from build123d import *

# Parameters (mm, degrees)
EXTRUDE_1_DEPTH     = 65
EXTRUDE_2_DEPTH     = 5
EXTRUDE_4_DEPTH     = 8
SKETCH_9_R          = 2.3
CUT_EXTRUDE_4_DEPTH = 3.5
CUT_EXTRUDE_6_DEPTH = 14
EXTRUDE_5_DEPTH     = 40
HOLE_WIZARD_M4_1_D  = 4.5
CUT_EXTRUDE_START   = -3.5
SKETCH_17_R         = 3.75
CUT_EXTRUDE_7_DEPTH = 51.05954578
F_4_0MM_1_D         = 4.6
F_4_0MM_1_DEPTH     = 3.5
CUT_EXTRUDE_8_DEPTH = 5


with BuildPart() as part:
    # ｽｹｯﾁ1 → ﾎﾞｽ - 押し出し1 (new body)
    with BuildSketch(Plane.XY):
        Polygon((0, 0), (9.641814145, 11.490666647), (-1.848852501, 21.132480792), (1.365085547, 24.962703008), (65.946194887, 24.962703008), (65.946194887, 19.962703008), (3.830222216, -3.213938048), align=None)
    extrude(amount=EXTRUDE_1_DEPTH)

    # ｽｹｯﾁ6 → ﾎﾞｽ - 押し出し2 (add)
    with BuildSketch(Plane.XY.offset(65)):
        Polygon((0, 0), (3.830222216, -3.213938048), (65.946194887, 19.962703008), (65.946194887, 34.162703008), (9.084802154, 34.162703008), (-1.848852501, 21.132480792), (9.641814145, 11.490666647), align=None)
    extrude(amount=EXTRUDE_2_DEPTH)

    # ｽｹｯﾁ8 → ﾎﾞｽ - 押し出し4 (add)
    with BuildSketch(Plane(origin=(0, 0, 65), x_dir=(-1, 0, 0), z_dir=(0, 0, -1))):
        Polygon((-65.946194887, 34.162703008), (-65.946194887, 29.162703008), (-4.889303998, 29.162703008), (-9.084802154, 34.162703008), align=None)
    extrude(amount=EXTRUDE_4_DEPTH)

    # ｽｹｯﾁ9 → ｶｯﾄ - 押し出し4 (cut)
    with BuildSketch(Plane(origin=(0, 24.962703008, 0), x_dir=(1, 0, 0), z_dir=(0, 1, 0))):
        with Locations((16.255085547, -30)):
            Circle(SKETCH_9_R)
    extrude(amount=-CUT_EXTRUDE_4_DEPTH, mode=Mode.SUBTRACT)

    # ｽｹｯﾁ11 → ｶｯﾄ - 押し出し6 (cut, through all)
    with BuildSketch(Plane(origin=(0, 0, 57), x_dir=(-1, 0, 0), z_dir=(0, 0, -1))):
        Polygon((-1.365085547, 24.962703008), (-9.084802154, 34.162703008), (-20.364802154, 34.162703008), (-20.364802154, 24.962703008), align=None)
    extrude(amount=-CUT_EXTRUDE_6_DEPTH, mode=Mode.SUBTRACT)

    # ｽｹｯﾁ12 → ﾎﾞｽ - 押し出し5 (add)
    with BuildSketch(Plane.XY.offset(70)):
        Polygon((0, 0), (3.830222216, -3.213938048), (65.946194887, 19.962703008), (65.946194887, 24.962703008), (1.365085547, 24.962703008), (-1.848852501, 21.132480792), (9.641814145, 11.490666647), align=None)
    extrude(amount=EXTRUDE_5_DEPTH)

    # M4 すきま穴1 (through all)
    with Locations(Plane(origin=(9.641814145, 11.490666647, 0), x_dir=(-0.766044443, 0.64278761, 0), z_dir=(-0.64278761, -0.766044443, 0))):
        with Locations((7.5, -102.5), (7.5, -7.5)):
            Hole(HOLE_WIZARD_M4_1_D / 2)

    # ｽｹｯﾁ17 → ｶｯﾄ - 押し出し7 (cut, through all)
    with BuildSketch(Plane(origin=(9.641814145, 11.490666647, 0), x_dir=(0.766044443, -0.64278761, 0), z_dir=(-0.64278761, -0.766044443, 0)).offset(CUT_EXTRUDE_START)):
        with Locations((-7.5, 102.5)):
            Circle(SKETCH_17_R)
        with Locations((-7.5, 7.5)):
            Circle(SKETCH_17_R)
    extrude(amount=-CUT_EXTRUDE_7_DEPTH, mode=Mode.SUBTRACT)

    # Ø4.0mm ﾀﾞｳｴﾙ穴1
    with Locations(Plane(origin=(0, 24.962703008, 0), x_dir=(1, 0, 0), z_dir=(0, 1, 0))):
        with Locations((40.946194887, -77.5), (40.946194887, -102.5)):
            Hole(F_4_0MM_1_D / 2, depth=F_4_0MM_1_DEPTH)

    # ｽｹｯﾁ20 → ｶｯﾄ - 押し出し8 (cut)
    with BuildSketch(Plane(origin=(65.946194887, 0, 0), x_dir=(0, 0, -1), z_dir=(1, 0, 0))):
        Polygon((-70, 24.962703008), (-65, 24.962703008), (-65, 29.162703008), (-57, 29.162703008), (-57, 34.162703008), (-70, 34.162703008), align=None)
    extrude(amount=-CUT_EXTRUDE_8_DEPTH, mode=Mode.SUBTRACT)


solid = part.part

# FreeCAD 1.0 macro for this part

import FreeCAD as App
import Part
import Sketcher
from FreeCAD import Vector
Q = App.Units.Quantity

doc = App.newDocument("Part")
body = doc.addObject("PartDesign::Body", "Body")

# Sketch on XY plane
sketch1 = body.newObject("Sketcher::SketchObject", "Sketch")
sketch1.AttachmentSupport = (doc.getObject("XY_Plane"), [""])
sketch1.MapMode = "FlatFace"
sketch1.addGeometry([
    Part.LineSegment(Vector(10, 11, 0), Vector(0, 0, 0)),  # 0
    Part.LineSegment(Vector(0, 0, 0), Vector(4, -3, 0)),  # 1
    Part.LineSegment(Vector(4, -3, 0), Vector(66, 20, 0)),  # 2
    Part.LineSegment(Vector(66, 20, 0), Vector(66, 25, 0)),  # 3
    Part.LineSegment(Vector(66, 25, 0), Vector(1, 25, 0)),  # 4
    Part.LineSegment(Vector(1, 25, 0), Vector(-2, 21, 0)),  # 5
    Part.LineSegment(Vector(-2, 21, 0), Vector(10, 11, 0)),  # 6
], False)
sketch1.addConstraint([
    Sketcher.Constraint("Coincident", 0, 2, 1, 1),
    Sketcher.Constraint("Coincident", 1, 2, 2, 1),
    Sketcher.Constraint("Coincident", 2, 2, 3, 1),
    Sketcher.Constraint("Coincident", 3, 2, 4, 1),
    Sketcher.Constraint("Coincident", 4, 2, 5, 1),
    Sketcher.Constraint("Coincident", 5, 2, 6, 1),
    Sketcher.Constraint("Coincident", 6, 2, 0, 1),
    Sketcher.Constraint("Vertical", 3),
    Sketcher.Constraint("Horizontal", 4),
    Sketcher.Constraint("Coincident", 0, 2, -1, 1),
    Sketcher.Constraint("Perpendicular", 0, 1),
    Sketcher.Constraint("Perpendicular", 1, 5),
    Sketcher.Constraint("Perpendicular", 5, 6),
    Sketcher.Constraint("Equal", 1, 5),
    Sketcher.Constraint("Equal", 0, 6),
    Sketcher.Constraint("DistanceY", 3, 1, 3, 2, Q("5 mm")),
    Sketcher.Constraint("Angle", 0, Q("-130 deg")),
    Sketcher.Constraint("Distance", 0, Q("15 mm")),
    Sketcher.Constraint("Distance", 1, Q("5 mm")),
    Sketcher.Constraint("DistanceX", 4, 2, 4, 1, Q("64.581109 mm")),
])
pad1 = body.newObject("PartDesign::Pad", "Pad")
pad1.Profile = sketch1
pad1.Length = 65

# Sketch on XY plane
sketch2 = body.newObject("Sketcher::SketchObject", "Sketch001")
sketch2.AttachmentSupport = (doc.getObject("XY_Plane"), [""])
sketch2.MapMode = "FlatFace"
sketch2.AttachmentOffset = App.Placement(Vector(0, 0, 65), App.Rotation())
sketch2.addGeometry([
    Part.LineSegment(Vector(0, 0, 0), Vector(4, -3, 0)),  # 0
    Part.LineSegment(Vector(4, -3, 0), Vector(66, 20, 0)),  # 1
    Part.LineSegment(Vector(66, 20, 0), Vector(66, 34, 0)),  # 2
    Part.LineSegment(Vector(66, 34, 0), Vector(9, 34, 0)),  # 3
    Part.LineSegment(Vector(9, 34, 0), Vector(-2, 21, 0)),  # 4
    Part.LineSegment(Vector(-2, 21, 0), Vector(10, 11, 0)),  # 5
    Part.LineSegment(Vector(10, 11, 0), Vector(0, 0, 0)),  # 6
], False)
sketch2.addConstraint([
    Sketcher.Constraint("Coincident", 0, 2, 1, 1),
    Sketcher.Constraint("Coincident", 1, 2, 2, 1),
    Sketcher.Constraint("Coincident", 2, 2, 3, 1),
    Sketcher.Constraint("Coincident", 3, 2, 4, 1),
    Sketcher.Constraint("Coincident", 4, 2, 5, 1),
    Sketcher.Constraint("Coincident", 5, 2, 6, 1),
    Sketcher.Constraint("Coincident", 6, 2, 0, 1),
    Sketcher.Constraint("Vertical", 2),
    Sketcher.Constraint("Horizontal", 3),
    Sketcher.Constraint("Coincident", 6, 2, -1, 1),
    Sketcher.Constraint("Perpendicular", 0, 4),
    Sketcher.Constraint("Perpendicular", 4, 5),
    Sketcher.Constraint("Perpendicular", 5, 6),
    Sketcher.Constraint("Equal", 5, 6),
    Sketcher.Constraint("Angle", 0, Q("-40 deg")),
    Sketcher.Constraint("Distance", 0, Q("5 mm")),
    Sketcher.Constraint("Distance", 5, Q("15 mm")),
    Sketcher.Constraint("DistanceY", 2, 1, 2, 2, Q("14.2 mm")),
    Sketcher.Constraint("Distance", 1, Q("66.29895 mm")),
    Sketcher.Constraint("DistanceX", 3, 2, 3, 1, Q("56.861393 mm")),
])
pad2 = body.newObject("PartDesign::Pad", "Pad001")
pad2.Profile = sketch2
pad2.Length = 5

# Sketch on XY plane
sketch3 = body.newObject("Sketcher::SketchObject", "Sketch002")
sketch3.AttachmentSupport = (doc.getObject("XY_Plane"), [""])
sketch3.MapMode = "FlatFace"
sketch3.AttachmentOffset = App.Placement(Vector(0, 0, 65), App.Rotation())
sketch3.addGeometry([
    Part.LineSegment(Vector(66, 34, 0), Vector(66, 29, 0)),
    Part.LineSegment(Vector(66, 29, 0), Vector(5, 29, 0)),
    Part.LineSegment(Vector(5, 29, 0), Vector(9, 34, 0)),
    Part.LineSegment(Vector(9, 34, 0), Vector(66, 34, 0)),
], False)
sketch3.addConstraint([
    Sketcher.Constraint("Coincident", 0, 2, 1, 1),
    Sketcher.Constraint("Coincident", 1, 2, 2, 1),
    Sketcher.Constraint("Coincident", 2, 2, 3, 1),
    Sketcher.Constraint("Coincident", 3, 2, 0, 1),
    Sketcher.Constraint("Vertical", 0),
    Sketcher.Constraint("Horizontal", 1),
    Sketcher.Constraint("Horizontal", 3),
    Sketcher.Constraint("DistanceY", 0, 2, 0, 1, Q("5 mm")),
    Sketcher.Constraint("Angle", 2, Q("50 deg")),
    Sketcher.Constraint("DistanceX", 1, 2, 1, 1, Q("61.056891 mm")),
    Sketcher.Constraint("DistanceX", -1, 1, 0, 2, Q("65.946195 mm")),
    Sketcher.Constraint("DistanceY", -1, 1, 0, 2, Q("29.162703 mm")),
])
pad3 = body.newObject("PartDesign::Pad", "Pad002")
pad3.Profile = sketch3
pad3.Length = 8
pad3.Reversed = True

# Sketch on XZ plane
sketch4 = body.newObject("Sketcher::SketchObject", "Sketch003")
sketch4.AttachmentSupport = (doc.getObject("XZ_Plane"), [""])
sketch4.MapMode = "FlatFace"
sketch4.AttachmentOffset = App.Placement(Vector(0, 0, -24.962703), App.Rotation())
sketch4.addGeometry(Part.Circle(Vector(16.3, 30, 0), Vector(0, 0, 1), 2.3), False)
sketch4.addConstraint([
    Sketcher.Constraint("Diameter", 0, Q("4.6 mm")),
    Sketcher.Constraint("DistanceY", -1, 1, 0, 3, Q("30 mm")),
    Sketcher.Constraint("DistanceX", -1, 1, 0, 3, Q("16.255086 mm")),
])
pocket1 = body.newObject("PartDesign::Pocket", "Pocket")
pocket1.Profile = sketch4
pocket1.Length = 3.5
pocket1.Reversed = True

# Sketch on XY plane
sketch5 = body.newObject("Sketcher::SketchObject", "Sketch004")
sketch5.AttachmentSupport = (doc.getObject("XY_Plane"), [""])
sketch5.MapMode = "FlatFace"
sketch5.AttachmentOffset = App.Placement(Vector(0, 0, 57), App.Rotation())
sketch5.addGeometry([
    Part.LineSegment(Vector(1, 25, 0), Vector(9, 34, 0)),
    Part.LineSegment(Vector(9, 34, 0), Vector(20, 34, 0)),
    Part.LineSegment(Vector(20, 34, 0), Vector(20, 25, 0)),
    Part.LineSegment(Vector(20, 25, 0), Vector(1, 25, 0)),
], False)
sketch5.addConstraint([
    Sketcher.Constraint("Coincident", 0, 2, 1, 1),
    Sketcher.Constraint("Coincident", 1, 2, 2, 1),
    Sketcher.Constraint("Coincident", 2, 2, 3, 1),
    Sketcher.Constraint("Coincident", 3, 2, 0, 1),
    Sketcher.Constraint("Horizontal", 1),
    Sketcher.Constraint("Vertical", 2),
    Sketcher.Constraint("Horizontal", 3),
    Sketcher.Constraint("Angle", 0, Q("50 deg")),
    Sketcher.Constraint("DistanceY", 2, 2, 2, 1, Q("9.2 mm")),
    Sketcher.Constraint("DistanceX", 1, 1, 1, 2, Q("11.28 mm")),
    Sketcher.Constraint("DistanceX", -1, 1, 0, 2, Q("9.084802 mm")),
    Sketcher.Constraint("DistanceY", -1, 1, 0, 2, Q("34.162703 mm")),
])
pocket2 = body.newObject("PartDesign::Pocket", "Pocket001")
pocket2.Profile = sketch5
pocket2.Type = "ThroughAll"
pocket2.Reversed = True

# Sketch on XY plane
sketch6 = body.newObject("Sketcher::SketchObject", "Sketch005")
sketch6.AttachmentSupport = (doc.getObject("XY_Plane"), [""])
sketch6.MapMode = "FlatFace"
sketch6.AttachmentOffset = App.Placement(Vector(0, 0, 70), App.Rotation())
sketch6.addGeometry([
    Part.LineSegment(Vector(0, 0, 0), Vector(4, -3, 0)),  # 0
    Part.LineSegment(Vector(4, -3, 0), Vector(66, 20, 0)),  # 1
    Part.LineSegment(Vector(66, 20, 0), Vector(66, 25, 0)),  # 2
    Part.LineSegment(Vector(66, 25, 0), Vector(1, 25, 0)),  # 3
    Part.LineSegment(Vector(1, 25, 0), Vector(-2, 21, 0)),  # 4
    Part.LineSegment(Vector(-2, 21, 0), Vector(10, 11, 0)),  # 5
    Part.LineSegment(Vector(10, 11, 0), Vector(0, 0, 0)),  # 6
], False)
sketch6.addConstraint([
    Sketcher.Constraint("Coincident", 0, 2, 1, 1),
    Sketcher.Constraint("Coincident", 1, 2, 2, 1),
    Sketcher.Constraint("Coincident", 2, 2, 3, 1),
    Sketcher.Constraint("Coincident", 3, 2, 4, 1),
    Sketcher.Constraint("Coincident", 4, 2, 5, 1),
    Sketcher.Constraint("Coincident", 5, 2, 6, 1),
    Sketcher.Constraint("Coincident", 6, 2, 0, 1),
    Sketcher.Constraint("Vertical", 2),
    Sketcher.Constraint("Horizontal", 3),
    Sketcher.Constraint("Coincident", 6, 2, -1, 1),
    Sketcher.Constraint("Perpendicular", 0, 4),
    Sketcher.Constraint("Perpendicular", 4, 5),
    Sketcher.Constraint("Perpendicular", 5, 6),
    Sketcher.Constraint("Equal", 0, 4),
    Sketcher.Constraint("Equal", 5, 6),
    Sketcher.Constraint("DistanceY", 2, 1, 2, 2, Q("5 mm")),
    Sketcher.Constraint("Angle", 0, Q("-40 deg")),
    Sketcher.Constraint("Distance", 0, Q("5 mm")),
    Sketcher.Constraint("Distance", 5, Q("15 mm")),
    Sketcher.Constraint("DistanceX", 3, 2, 3, 1, Q("64.581109 mm")),
])
pad4 = body.newObject("PartDesign::Pad", "Pad003")
pad4.Profile = sketch6
pad4.Length = 40

# Sketch on an angled plane
sketch7 = body.newObject("Sketcher::SketchObject", "Sketch006")
sketch7.Placement = App.Placement(Vector(9.641814, 11.490667, 0), App.Rotation(Vector(-0.766044443, 0.64278761, 0), Vector(0, 0, -1), Vector(-0.64278761, -0.766044443, 0), "ZXY"))
sketch7.addGeometry([
    Part.Circle(Vector(7.5, -102.5, 0), Vector(0, 0, 1), 2.2),
    Part.Circle(Vector(7.5, -7.5, 0), Vector(0, 0, 1), 2.2),
], False)
sketch7.addConstraint([
    Sketcher.Constraint("Equal", 0, 1),
    Sketcher.Constraint("Vertical", 0, 3, 1, 3),
    Sketcher.Constraint("Diameter", 0, Q("4.5 mm")),
    Sketcher.Constraint("DistanceY", 0, 3, 1, 3, Q("95 mm")),
    Sketcher.Constraint("DistanceX", -1, 1, 0, 3, Q("7.5 mm")),
    Sketcher.Constraint("DistanceY", 0, 3, -1, 1, Q("102.5 mm")),
])
doc.recompute()
hole = body.newObject("PartDesign::Hole", "Hole")
hole.Profile = sketch7
hole.ThreadType = "None"
hole.Diameter = 4.5
hole.DepthType = "ThroughAll"

# Sketch on an angled plane
sketch8 = body.newObject("Sketcher::SketchObject", "Sketch007")
sketch8.Placement = App.Placement(Vector(11.891571, 14.171822, 0), App.Rotation(Vector(0.766044443, -0.64278761, 0), Vector(0, 0, 1), Vector(-0.64278761, -0.766044443, 0), "ZXY"))
sketch8.addGeometry([
    Part.Circle(Vector(-7.5, 102.5, 0), Vector(0, 0, 1), 3.8),
    Part.Circle(Vector(-7.5, 7.5, 0), Vector(0, 0, 1), 3.8),
], False)
sketch8.addConstraint([
    Sketcher.Constraint("Equal", 0, 1),
    Sketcher.Constraint("Vertical", 0, 3, 1, 3),
    Sketcher.Constraint("Diameter", 0, Q("7.5 mm")),
    Sketcher.Constraint("DistanceY", 1, 3, 0, 3, Q("95 mm")),
    Sketcher.Constraint("DistanceX", 0, 3, -1, 1, Q("7.5 mm")),
    Sketcher.Constraint("DistanceY", -1, 1, 0, 3, Q("102.5 mm")),
])
pocket3 = body.newObject("PartDesign::Pocket", "Pocket002")
pocket3.Profile = sketch8
pocket3.Type = "ThroughAll"

# Sketch on XZ plane
sketch9 = body.newObject("Sketcher::SketchObject", "Sketch008")
sketch9.AttachmentSupport = (doc.getObject("XZ_Plane"), [""])
sketch9.MapMode = "FlatFace"
sketch9.AttachmentOffset = App.Placement(Vector(0, 0, -24.962703), App.Rotation())
sketch9.addGeometry([
    Part.Circle(Vector(40.9, 77.5, 0), Vector(0, 0, 1), 2.3),
    Part.Circle(Vector(40.9, 102.5, 0), Vector(0, 0, 1), 2.3),
], False)
sketch9.addConstraint([
    Sketcher.Constraint("Equal", 0, 1),
    Sketcher.Constraint("Vertical", 0, 3, 1, 3),
    Sketcher.Constraint("Diameter", 0, Q("4.6 mm")),
    Sketcher.Constraint("DistanceY", 0, 3, 1, 3, Q("25 mm")),
    Sketcher.Constraint("DistanceY", -1, 1, 0, 3, Q("77.5 mm")),
    Sketcher.Constraint("DistanceX", -1, 1, 0, 3, Q("40.946195 mm")),
])
doc.recompute()
hole2 = body.newObject("PartDesign::Hole", "Hole001")
hole2.Profile = sketch9
hole2.ThreadType = "None"
hole2.Diameter = 4.6
hole2.DepthType = "Dimension"
hole2.Depth = 3.5
hole2.DrillPoint = "Flat"
hole2.Reversed = True

# Sketch on YZ plane
sketch10 = body.newObject("Sketcher::SketchObject", "Sketch009")
sketch10.AttachmentSupport = (doc.getObject("YZ_Plane"), [""])
sketch10.MapMode = "FlatFace"
sketch10.AttachmentOffset = App.Placement(Vector(0, 0, 65.946195), App.Rotation())
sketch10.addGeometry([
    Part.LineSegment(Vector(25, 70, 0), Vector(25, 65, 0)),  # 0
    Part.LineSegment(Vector(25, 65, 0), Vector(29.2, 65, 0)),  # 1
    Part.LineSegment(Vector(29.2, 65, 0), Vector(29.2, 57, 0)),  # 2
    Part.LineSegment(Vector(29.2, 57, 0), Vector(34.2, 57, 0)),  # 3
    Part.LineSegment(Vector(34.2, 57, 0), Vector(34.2, 70, 0)),  # 4
    Part.LineSegment(Vector(34.2, 70, 0), Vector(25, 70, 0)),  # 5
], False)
sketch10.addConstraint([
    Sketcher.Constraint("Coincident", 0, 2, 1, 1),
    Sketcher.Constraint("Coincident", 1, 2, 2, 1),
    Sketcher.Constraint("Coincident", 2, 2, 3, 1),
    Sketcher.Constraint("Coincident", 3, 2, 4, 1),
    Sketcher.Constraint("Coincident", 4, 2, 5, 1),
    Sketcher.Constraint("Coincident", 5, 2, 0, 1),
    Sketcher.Constraint("Vertical", 0),
    Sketcher.Constraint("Horizontal", 1),
    Sketcher.Constraint("Vertical", 2),
    Sketcher.Constraint("Horizontal", 3),
    Sketcher.Constraint("Vertical", 4),
    Sketcher.Constraint("Horizontal", 5),
    Sketcher.Constraint("Equal", 3, 0),
    Sketcher.Constraint("DistanceX", 3, 1, 3, 2, Q("5 mm")),
    Sketcher.Constraint("DistanceY", 2, 2, 2, 1, Q("8 mm")),
    Sketcher.Constraint("DistanceX", 1, 1, 1, 2, Q("4.2 mm")),
    Sketcher.Constraint("DistanceY", -1, 1, 0, 2, Q("65 mm")),
    Sketcher.Constraint("DistanceX", -1, 1, 0, 2, Q("24.962703 mm")),
])
pocket4 = body.newObject("PartDesign::Pocket", "Pocket003")
pocket4.Profile = sketch10
pocket4.Length = 5

doc.recompute()
